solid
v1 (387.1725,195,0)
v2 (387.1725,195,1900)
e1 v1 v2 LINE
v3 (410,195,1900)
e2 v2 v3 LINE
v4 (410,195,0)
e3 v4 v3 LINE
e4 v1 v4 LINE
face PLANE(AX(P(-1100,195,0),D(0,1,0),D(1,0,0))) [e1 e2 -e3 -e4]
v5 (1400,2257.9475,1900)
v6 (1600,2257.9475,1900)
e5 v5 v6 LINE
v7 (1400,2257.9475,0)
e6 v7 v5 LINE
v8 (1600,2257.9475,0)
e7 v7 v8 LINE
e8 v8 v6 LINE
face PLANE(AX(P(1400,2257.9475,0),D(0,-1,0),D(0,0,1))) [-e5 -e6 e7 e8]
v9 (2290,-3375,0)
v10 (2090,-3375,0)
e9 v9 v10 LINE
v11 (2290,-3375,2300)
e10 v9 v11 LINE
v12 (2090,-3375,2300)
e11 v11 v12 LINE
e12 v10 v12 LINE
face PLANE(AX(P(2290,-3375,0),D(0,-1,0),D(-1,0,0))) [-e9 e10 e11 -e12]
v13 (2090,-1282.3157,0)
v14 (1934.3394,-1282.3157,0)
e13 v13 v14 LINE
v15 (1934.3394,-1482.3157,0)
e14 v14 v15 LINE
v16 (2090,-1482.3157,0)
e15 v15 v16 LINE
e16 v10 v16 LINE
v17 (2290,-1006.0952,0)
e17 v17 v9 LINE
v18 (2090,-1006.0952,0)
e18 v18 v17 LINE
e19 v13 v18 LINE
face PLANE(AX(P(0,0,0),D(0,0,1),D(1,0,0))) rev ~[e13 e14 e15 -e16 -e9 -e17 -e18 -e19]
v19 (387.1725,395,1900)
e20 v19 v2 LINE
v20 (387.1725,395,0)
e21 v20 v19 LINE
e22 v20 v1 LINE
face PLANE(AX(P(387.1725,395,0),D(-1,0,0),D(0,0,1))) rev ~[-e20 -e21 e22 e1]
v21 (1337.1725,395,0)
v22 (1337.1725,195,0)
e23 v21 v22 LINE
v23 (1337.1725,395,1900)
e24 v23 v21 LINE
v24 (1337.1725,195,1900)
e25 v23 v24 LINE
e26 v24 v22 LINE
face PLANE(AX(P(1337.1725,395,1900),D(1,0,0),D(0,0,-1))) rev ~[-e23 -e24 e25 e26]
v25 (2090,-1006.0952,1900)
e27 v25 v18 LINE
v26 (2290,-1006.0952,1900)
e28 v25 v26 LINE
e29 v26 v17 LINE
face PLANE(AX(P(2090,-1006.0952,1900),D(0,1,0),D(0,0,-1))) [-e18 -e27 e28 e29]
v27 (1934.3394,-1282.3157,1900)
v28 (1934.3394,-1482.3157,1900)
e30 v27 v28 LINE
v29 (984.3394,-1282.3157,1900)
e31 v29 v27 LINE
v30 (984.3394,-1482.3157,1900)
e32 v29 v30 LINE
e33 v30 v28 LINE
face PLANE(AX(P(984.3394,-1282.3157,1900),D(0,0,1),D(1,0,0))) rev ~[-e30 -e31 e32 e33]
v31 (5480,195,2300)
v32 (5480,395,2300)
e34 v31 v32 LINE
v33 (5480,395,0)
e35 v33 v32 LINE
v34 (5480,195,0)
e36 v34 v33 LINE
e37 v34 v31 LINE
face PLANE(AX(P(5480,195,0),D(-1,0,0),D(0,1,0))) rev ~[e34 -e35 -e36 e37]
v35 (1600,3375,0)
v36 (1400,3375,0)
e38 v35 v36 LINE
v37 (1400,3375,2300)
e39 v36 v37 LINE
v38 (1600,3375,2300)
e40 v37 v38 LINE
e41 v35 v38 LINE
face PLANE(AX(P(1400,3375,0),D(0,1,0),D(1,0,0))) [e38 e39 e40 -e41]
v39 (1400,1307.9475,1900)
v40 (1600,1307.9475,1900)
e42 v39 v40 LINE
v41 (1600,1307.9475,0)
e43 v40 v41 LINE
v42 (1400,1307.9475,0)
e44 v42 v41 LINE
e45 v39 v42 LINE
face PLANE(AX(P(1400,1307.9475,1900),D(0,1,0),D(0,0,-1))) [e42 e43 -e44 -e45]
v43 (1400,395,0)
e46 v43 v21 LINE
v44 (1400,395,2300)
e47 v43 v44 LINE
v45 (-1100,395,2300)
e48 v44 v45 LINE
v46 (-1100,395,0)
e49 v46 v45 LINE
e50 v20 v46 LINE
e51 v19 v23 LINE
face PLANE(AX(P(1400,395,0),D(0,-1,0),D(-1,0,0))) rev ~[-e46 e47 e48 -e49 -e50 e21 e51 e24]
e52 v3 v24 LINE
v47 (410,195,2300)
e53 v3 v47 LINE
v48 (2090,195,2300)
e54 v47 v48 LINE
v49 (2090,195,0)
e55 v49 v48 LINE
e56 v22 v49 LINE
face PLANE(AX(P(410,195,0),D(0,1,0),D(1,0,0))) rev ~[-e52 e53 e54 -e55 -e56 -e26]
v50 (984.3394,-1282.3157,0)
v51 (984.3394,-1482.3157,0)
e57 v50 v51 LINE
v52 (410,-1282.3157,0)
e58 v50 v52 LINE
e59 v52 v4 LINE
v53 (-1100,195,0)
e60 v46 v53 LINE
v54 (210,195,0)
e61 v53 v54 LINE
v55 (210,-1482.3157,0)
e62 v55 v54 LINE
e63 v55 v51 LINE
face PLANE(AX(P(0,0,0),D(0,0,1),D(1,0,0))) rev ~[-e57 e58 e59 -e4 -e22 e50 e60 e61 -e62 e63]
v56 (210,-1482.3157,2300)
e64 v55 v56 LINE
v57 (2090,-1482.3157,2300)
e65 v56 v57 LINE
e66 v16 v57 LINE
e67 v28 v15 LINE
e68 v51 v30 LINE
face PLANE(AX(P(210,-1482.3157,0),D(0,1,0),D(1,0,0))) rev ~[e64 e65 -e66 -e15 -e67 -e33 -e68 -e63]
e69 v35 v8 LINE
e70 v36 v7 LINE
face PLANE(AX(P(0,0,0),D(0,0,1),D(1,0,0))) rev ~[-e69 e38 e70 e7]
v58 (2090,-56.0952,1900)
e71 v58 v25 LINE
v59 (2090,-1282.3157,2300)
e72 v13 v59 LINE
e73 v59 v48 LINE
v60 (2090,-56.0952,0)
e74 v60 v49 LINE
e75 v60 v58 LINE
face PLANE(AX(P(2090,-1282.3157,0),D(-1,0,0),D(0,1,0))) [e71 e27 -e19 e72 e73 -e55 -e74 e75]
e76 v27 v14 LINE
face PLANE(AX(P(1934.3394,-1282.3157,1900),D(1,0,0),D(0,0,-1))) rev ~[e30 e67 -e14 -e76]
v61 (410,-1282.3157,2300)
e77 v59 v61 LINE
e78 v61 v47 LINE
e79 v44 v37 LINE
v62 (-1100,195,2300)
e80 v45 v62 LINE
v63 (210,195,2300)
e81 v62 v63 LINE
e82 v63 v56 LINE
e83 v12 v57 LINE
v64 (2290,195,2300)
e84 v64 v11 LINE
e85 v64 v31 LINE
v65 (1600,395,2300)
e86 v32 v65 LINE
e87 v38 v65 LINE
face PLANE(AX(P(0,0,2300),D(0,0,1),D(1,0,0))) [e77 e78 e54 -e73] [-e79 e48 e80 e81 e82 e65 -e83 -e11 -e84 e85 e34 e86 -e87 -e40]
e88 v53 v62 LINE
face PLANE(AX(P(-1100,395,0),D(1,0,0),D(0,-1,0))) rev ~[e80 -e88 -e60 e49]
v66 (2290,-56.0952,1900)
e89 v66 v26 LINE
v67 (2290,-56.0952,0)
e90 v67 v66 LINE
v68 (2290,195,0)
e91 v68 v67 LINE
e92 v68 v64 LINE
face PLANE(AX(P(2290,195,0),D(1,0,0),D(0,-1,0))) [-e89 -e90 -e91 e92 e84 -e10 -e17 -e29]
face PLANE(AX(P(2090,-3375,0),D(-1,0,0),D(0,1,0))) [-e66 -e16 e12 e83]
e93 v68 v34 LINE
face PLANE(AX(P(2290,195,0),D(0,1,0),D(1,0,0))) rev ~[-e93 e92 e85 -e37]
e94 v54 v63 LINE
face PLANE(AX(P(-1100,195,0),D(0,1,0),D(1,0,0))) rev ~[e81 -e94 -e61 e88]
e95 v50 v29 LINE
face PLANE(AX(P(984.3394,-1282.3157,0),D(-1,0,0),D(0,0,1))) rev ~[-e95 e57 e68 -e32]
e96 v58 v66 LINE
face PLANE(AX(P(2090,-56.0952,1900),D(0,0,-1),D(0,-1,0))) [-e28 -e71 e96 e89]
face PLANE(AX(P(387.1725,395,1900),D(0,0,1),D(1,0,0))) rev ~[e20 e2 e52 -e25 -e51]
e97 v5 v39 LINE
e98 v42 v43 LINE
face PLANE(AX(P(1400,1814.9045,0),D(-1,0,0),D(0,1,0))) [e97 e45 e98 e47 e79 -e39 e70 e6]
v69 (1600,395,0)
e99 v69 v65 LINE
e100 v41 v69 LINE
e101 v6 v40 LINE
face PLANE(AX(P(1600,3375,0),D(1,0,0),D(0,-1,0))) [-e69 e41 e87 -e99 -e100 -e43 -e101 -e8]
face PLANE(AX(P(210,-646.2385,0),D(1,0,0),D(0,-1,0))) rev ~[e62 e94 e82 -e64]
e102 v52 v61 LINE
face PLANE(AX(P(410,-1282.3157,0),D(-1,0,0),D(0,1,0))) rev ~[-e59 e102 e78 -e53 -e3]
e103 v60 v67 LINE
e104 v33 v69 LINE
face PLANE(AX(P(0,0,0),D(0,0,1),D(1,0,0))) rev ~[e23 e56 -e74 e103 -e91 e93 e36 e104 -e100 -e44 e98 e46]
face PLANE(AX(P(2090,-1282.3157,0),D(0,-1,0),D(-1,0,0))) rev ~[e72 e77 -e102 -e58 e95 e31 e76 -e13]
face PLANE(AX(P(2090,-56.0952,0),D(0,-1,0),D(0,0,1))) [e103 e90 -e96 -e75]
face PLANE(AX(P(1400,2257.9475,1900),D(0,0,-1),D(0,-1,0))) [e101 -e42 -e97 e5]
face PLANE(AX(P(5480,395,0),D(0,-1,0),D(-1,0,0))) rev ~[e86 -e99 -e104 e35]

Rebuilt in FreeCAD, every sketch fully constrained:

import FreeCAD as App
import Part
import Sketcher

V = App.Vector


def add_polygon(sketch, points):
    """Adds a closed chain of lines whose ends are joined by coincident constraints."""
    first, n = sketch.GeometryCount, len(points)
    for a, b in zip(points, points[1:] + points[:1]):
        sketch.addGeometry(Part.LineSegment(App.Vector(*a, 0), App.Vector(*b, 0)), False)
    for i in range(n):
        sketch.addConstraint(Sketcher.Constraint("Coincident", first + i, 2, first + (i + 1) % n, 1))

doc = App.newDocument("Part")
body = doc.addObject("PartDesign::Body", "Body")

sketch1 = body.newObject("Sketcher::SketchObject", "Sketch")
sketch1.AttachmentSupport = (doc.getObject("XY_Plane"), [""])
sketch1.MapMode = "FlatFace"
add_polygon(sketch1, [(1400, 3375), (1400, 395), (-1100, 395), (-1100, 195), (210, 195), (210, -1482.3157), (2090, -1482.3157), (2090, -3375), (2290, -3375), (2290, 195), (5480, 195), (5480, 395), (1600, 395), (1600, 3375)])
add_polygon(sketch1, [(410, -1282.3157), (410, 195), (2090, 195), (2090, -1282.3157)])
sketch1.addConstraint([
    Sketcher.Constraint("Vertical", 0),
    Sketcher.Constraint("Horizontal", 1),
    Sketcher.Constraint("Vertical", 2),
    Sketcher.Constraint("Horizontal", 3),
    Sketcher.Constraint("Vertical", 4),
    Sketcher.Constraint("Horizontal", 5),
    Sketcher.Constraint("Vertical", 6),
    Sketcher.Constraint("Horizontal", 7),
    Sketcher.Constraint("Vertical", 8),
    Sketcher.Constraint("Horizontal", 9),
    Sketcher.Constraint("Vertical", 10),
    Sketcher.Constraint("Horizontal", 11),
    Sketcher.Constraint("Vertical", 12),
    Sketcher.Constraint("Horizontal", 13),
    Sketcher.Constraint("Vertical", 14),
    Sketcher.Constraint("Horizontal", 15),
    Sketcher.Constraint("Vertical", 16),
    Sketcher.Constraint("Horizontal", 17),
    Sketcher.Constraint("Horizontal", 3, 2, 8, 2),
    Sketcher.Constraint("Horizontal", 1, 2, 10, 2),
    Sketcher.Constraint("Horizontal", 9, 2, 14, 2),
    Sketcher.Constraint("Vertical", 6, 2, 15, 2),
    Sketcher.Constraint("Equal", 7, 13),
    Sketcher.Constraint("Equal", 13, 2),
    Sketcher.Constraint("DistanceX", 1, 2, 1, 1, 2500.0),
    Sketcher.Constraint("DistanceX", 3, 1, 3, 2, 1310.0),
    Sketcher.Constraint("DistanceX", 7, 1, 7, 2, 200.0),
    Sketcher.Constraint("DistanceX", 11, 2, 11, 1, 3880.0),
    Sketcher.Constraint("DistanceX", 15, 1, 15, 2, 1680.0),
    Sketcher.Constraint("DistanceY", 0, 2, 0, 1, 2980.0),
    Sketcher.Constraint("DistanceX", 3, 2, 14, 2, 200.0),
    Sketcher.Constraint("DistanceY", 5, 2, 16, 2, 200.0),
    Sketcher.Constraint("DistanceY", 8, 1, 8, 2, 3570.0),
    Sketcher.Constraint("DistanceX", -1, 1, 0, 2, 1400.0),
    Sketcher.Constraint("DistanceY", -1, 1, 0, 2, 395.0),
    Sketcher.Constraint("DistanceY", 4, 2, 4, 1, 1677.3157),
])
pad1 = body.newObject("PartDesign::Pad", "Pad")
pad1.Profile = sketch1
pad1.Length = 2300

sketch2 = body.newObject("Sketcher::SketchObject", "Sketch001")
sketch2.AttachmentSupport = (doc.getObject("YZ_Plane"), [""])
sketch2.MapMode = "FlatFace"
sketch2.AttachmentOffset = App.Placement(V(0, 0, 1400), App.Rotation())
add_polygon(sketch2, [(2257.9475, 0), (1307.9475, 0), (1307.9475, 1900), (2257.9475, 1900)])
sketch2.addConstraint([
    Sketcher.Constraint("Horizontal", 0),
    Sketcher.Constraint("Vertical", 1),
    Sketcher.Constraint("Horizontal", 2),
    Sketcher.Constraint("Vertical", 3),
    Sketcher.Constraint("PointOnObject", 0, 2, -1),
    Sketcher.Constraint("DistanceX", 0, 2, 0, 1, 950.0),
    Sketcher.Constraint("DistanceY", 1, 1, 1, 2, 1900.0),
    Sketcher.Constraint("DistanceX", -1, 1, 0, 2, 1307.9475),
])
pocket1 = body.newObject("PartDesign::Pocket", "Pocket")
pocket1.Profile = sketch2
pocket1.Length = 200
pocket1.Reversed = True

sketch3 = body.newObject("Sketcher::SketchObject", "Sketch002")
sketch3.AttachmentSupport = (doc.getObject("XZ_Plane"), [""])
sketch3.MapMode = "FlatFace"
sketch3.AttachmentOffset = App.Placement(V(0, 0, -395), App.Rotation())
add_polygon(sketch3, [(1337.1725, 0), (387.1725, 0), (387.1725, 1900), (1337.1725, 1900)])
sketch3.addConstraint([
    Sketcher.Constraint("Horizontal", 0),
    Sketcher.Constraint("Vertical", 1),
    Sketcher.Constraint("Horizontal", 2),
    Sketcher.Constraint("Vertical", 3),
    Sketcher.Constraint("PointOnObject", 0, 2, -1),
    Sketcher.Constraint("DistanceX", 0, 2, 0, 1, 950.0),
    Sketcher.Constraint("DistanceY", 1, 1, 1, 2, 1900.0),
    Sketcher.Constraint("DistanceX", -1, 1, 0, 2, 387.1725),
])
pocket2 = body.newObject("PartDesign::Pocket", "Pocket001")
pocket2.Profile = sketch3
pocket2.Length = 200
pocket2.Reversed = True

sketch4 = body.newObject("Sketcher::SketchObject", "Sketch003")
sketch4.AttachmentSupport = (doc.getObject("YZ_Plane"), [""])
sketch4.MapMode = "FlatFace"
sketch4.AttachmentOffset = App.Placement(V(0, 0, 2090), App.Rotation())
add_polygon(sketch4, [(-56.0952, 0), (-1006.0952, 0), (-1006.0952, 1900), (-56.0952, 1900)])
sketch4.addConstraint([
    Sketcher.Constraint("Horizontal", 0),
    Sketcher.Constraint("Vertical", 1),
    Sketcher.Constraint("Horizontal", 2),
    Sketcher.Constraint("Vertical", 3),
    Sketcher.Constraint("PointOnObject", 0, 2, -1),
    Sketcher.Constraint("DistanceX", 0, 2, 0, 1, 950.0),
    Sketcher.Constraint("DistanceY", 1, 1, 1, 2, 1900.0),
    Sketcher.Constraint("DistanceX", 0, 2, -1, 1, 1006.0952),
])
pocket3 = body.newObject("PartDesign::Pocket", "Pocket002")
pocket3.Profile = sketch4
pocket3.Length = 200
pocket3.Reversed = True

sketch5 = body.newObject("Sketcher::SketchObject", "Sketch004")
sketch5.AttachmentSupport = (doc.getObject("XZ_Plane"), [""])
sketch5.MapMode = "FlatFace"
sketch5.AttachmentOffset = App.Placement(V(0, 0, 1282.3157), App.Rotation())
add_polygon(sketch5, [(1934.3394, 0), (984.3394, 0), (984.3394, 1900), (1934.3394, 1900)])
sketch5.addConstraint([
    Sketcher.Constraint("Horizontal", 0),
    Sketcher.Constraint("Vertical", 1),
    Sketcher.Constraint("Horizontal", 2),
    Sketcher.Constraint("Vertical", 3),
    Sketcher.Constraint("PointOnObject", 0, 2, -1),
    Sketcher.Constraint("DistanceX", 0, 2, 0, 1, 950.0),
    Sketcher.Constraint("DistanceY", 1, 1, 1, 2, 1900.0),
    Sketcher.Constraint("DistanceX", -1, 1, 0, 2, 984.3394),
])
pocket4 = body.newObject("PartDesign::Pocket", "Pocket003")
pocket4.Profile = sketch5
pocket4.Length = 200
pocket4.Reversed = True

doc.recompute()
